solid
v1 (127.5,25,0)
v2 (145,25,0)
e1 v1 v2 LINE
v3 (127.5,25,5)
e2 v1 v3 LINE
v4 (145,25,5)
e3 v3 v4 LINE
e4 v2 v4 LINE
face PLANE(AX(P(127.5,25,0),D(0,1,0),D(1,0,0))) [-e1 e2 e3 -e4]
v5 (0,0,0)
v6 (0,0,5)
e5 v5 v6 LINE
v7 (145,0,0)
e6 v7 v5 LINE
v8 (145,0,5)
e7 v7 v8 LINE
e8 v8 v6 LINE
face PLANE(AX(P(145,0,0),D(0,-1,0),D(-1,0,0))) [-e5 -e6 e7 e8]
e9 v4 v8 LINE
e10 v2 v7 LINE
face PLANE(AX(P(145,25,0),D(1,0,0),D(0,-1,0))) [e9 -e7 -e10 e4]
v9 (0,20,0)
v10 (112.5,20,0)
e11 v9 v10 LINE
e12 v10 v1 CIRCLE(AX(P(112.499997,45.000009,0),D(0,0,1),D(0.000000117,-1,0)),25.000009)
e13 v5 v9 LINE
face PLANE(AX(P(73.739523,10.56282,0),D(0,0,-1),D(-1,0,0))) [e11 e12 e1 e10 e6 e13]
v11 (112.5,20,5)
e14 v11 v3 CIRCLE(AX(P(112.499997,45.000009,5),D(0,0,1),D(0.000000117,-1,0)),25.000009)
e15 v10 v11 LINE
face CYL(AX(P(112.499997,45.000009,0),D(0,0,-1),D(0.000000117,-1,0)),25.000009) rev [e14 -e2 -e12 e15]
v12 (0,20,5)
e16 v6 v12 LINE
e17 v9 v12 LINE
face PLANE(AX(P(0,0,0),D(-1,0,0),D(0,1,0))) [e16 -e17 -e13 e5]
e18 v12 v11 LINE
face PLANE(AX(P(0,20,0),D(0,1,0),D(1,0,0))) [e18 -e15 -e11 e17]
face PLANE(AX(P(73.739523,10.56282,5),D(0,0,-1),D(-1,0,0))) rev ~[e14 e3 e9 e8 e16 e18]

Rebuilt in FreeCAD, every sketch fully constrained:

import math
import FreeCAD as App
import Part
import Sketcher

doc = App.newDocument("Part")
body = doc.addObject("PartDesign::Body", "Body")

# Sketch on XY plane
sketch1 = body.newObject("Sketcher::SketchObject", "Sketch")
sketch1.AttachmentSupport = (doc.getObject("XY_Plane"), [""])
sketch1.MapMode = "FlatFace"
sketch1.addGeometry([
    Part.LineSegment(App.Vector(145, 25, 0), App.Vector(127.5, 25, 0)),  # 0
    Part.ArcOfCircle(Part.Circle(App.Vector(112.499997, 45.000009, 0), App.Vector(0, 0, 1), 25.000009), math.radians(-89.999993), math.radians(-53.130109)),  # 1
    Part.LineSegment(App.Vector(112.5, 20, 0), App.Vector(0, 20, 0)),  # 2
    Part.LineSegment(App.Vector(0, 20, 0), App.Vector(0, 0, 0)),  # 3
    Part.LineSegment(App.Vector(0, 0, 0), App.Vector(145, 0, 0)),  # 4
    Part.LineSegment(App.Vector(145, 0, 0), App.Vector(145, 25, 0)),  # 5
], False)
sketch1.addConstraint([
    Sketcher.Constraint("Coincident", 0, 2, 1, 2),
    Sketcher.Constraint("Tangent", 1, 1, 2, 1),
    Sketcher.Constraint("Coincident", 2, 2, 3, 1),
    Sketcher.Constraint("Coincident", 3, 2, 4, 1),
    Sketcher.Constraint("Coincident", 4, 2, 5, 1),
    Sketcher.Constraint("Coincident", 5, 2, 0, 1),
    Sketcher.Constraint("Horizontal", 0),
    Sketcher.Constraint("Horizontal", 2),
    Sketcher.Constraint("Vertical", 3),
    Sketcher.Constraint("Horizontal", 4),
    Sketcher.Constraint("Vertical", 5),
    Sketcher.Constraint("Coincident", 3, 2, -1, 1),
    Sketcher.Constraint("DistanceX", 4, 1, 4, 2, 145.0),
    Sketcher.Constraint("DistanceY", 3, 2, 3, 1, 20.0),
    Sketcher.Constraint("DistanceY", 5, 1, 5, 2, 25.0),
    Sketcher.Constraint("DistanceX", 0, 2, 0, 1, 17.5),
    Sketcher.Constraint("DistanceX", 2, 2, 2, 1, 112.5),
])
pad1 = body.newObject("PartDesign::Pad", "Pad")
pad1.Profile = sketch1
pad1.Length = 5

doc.recompute()
